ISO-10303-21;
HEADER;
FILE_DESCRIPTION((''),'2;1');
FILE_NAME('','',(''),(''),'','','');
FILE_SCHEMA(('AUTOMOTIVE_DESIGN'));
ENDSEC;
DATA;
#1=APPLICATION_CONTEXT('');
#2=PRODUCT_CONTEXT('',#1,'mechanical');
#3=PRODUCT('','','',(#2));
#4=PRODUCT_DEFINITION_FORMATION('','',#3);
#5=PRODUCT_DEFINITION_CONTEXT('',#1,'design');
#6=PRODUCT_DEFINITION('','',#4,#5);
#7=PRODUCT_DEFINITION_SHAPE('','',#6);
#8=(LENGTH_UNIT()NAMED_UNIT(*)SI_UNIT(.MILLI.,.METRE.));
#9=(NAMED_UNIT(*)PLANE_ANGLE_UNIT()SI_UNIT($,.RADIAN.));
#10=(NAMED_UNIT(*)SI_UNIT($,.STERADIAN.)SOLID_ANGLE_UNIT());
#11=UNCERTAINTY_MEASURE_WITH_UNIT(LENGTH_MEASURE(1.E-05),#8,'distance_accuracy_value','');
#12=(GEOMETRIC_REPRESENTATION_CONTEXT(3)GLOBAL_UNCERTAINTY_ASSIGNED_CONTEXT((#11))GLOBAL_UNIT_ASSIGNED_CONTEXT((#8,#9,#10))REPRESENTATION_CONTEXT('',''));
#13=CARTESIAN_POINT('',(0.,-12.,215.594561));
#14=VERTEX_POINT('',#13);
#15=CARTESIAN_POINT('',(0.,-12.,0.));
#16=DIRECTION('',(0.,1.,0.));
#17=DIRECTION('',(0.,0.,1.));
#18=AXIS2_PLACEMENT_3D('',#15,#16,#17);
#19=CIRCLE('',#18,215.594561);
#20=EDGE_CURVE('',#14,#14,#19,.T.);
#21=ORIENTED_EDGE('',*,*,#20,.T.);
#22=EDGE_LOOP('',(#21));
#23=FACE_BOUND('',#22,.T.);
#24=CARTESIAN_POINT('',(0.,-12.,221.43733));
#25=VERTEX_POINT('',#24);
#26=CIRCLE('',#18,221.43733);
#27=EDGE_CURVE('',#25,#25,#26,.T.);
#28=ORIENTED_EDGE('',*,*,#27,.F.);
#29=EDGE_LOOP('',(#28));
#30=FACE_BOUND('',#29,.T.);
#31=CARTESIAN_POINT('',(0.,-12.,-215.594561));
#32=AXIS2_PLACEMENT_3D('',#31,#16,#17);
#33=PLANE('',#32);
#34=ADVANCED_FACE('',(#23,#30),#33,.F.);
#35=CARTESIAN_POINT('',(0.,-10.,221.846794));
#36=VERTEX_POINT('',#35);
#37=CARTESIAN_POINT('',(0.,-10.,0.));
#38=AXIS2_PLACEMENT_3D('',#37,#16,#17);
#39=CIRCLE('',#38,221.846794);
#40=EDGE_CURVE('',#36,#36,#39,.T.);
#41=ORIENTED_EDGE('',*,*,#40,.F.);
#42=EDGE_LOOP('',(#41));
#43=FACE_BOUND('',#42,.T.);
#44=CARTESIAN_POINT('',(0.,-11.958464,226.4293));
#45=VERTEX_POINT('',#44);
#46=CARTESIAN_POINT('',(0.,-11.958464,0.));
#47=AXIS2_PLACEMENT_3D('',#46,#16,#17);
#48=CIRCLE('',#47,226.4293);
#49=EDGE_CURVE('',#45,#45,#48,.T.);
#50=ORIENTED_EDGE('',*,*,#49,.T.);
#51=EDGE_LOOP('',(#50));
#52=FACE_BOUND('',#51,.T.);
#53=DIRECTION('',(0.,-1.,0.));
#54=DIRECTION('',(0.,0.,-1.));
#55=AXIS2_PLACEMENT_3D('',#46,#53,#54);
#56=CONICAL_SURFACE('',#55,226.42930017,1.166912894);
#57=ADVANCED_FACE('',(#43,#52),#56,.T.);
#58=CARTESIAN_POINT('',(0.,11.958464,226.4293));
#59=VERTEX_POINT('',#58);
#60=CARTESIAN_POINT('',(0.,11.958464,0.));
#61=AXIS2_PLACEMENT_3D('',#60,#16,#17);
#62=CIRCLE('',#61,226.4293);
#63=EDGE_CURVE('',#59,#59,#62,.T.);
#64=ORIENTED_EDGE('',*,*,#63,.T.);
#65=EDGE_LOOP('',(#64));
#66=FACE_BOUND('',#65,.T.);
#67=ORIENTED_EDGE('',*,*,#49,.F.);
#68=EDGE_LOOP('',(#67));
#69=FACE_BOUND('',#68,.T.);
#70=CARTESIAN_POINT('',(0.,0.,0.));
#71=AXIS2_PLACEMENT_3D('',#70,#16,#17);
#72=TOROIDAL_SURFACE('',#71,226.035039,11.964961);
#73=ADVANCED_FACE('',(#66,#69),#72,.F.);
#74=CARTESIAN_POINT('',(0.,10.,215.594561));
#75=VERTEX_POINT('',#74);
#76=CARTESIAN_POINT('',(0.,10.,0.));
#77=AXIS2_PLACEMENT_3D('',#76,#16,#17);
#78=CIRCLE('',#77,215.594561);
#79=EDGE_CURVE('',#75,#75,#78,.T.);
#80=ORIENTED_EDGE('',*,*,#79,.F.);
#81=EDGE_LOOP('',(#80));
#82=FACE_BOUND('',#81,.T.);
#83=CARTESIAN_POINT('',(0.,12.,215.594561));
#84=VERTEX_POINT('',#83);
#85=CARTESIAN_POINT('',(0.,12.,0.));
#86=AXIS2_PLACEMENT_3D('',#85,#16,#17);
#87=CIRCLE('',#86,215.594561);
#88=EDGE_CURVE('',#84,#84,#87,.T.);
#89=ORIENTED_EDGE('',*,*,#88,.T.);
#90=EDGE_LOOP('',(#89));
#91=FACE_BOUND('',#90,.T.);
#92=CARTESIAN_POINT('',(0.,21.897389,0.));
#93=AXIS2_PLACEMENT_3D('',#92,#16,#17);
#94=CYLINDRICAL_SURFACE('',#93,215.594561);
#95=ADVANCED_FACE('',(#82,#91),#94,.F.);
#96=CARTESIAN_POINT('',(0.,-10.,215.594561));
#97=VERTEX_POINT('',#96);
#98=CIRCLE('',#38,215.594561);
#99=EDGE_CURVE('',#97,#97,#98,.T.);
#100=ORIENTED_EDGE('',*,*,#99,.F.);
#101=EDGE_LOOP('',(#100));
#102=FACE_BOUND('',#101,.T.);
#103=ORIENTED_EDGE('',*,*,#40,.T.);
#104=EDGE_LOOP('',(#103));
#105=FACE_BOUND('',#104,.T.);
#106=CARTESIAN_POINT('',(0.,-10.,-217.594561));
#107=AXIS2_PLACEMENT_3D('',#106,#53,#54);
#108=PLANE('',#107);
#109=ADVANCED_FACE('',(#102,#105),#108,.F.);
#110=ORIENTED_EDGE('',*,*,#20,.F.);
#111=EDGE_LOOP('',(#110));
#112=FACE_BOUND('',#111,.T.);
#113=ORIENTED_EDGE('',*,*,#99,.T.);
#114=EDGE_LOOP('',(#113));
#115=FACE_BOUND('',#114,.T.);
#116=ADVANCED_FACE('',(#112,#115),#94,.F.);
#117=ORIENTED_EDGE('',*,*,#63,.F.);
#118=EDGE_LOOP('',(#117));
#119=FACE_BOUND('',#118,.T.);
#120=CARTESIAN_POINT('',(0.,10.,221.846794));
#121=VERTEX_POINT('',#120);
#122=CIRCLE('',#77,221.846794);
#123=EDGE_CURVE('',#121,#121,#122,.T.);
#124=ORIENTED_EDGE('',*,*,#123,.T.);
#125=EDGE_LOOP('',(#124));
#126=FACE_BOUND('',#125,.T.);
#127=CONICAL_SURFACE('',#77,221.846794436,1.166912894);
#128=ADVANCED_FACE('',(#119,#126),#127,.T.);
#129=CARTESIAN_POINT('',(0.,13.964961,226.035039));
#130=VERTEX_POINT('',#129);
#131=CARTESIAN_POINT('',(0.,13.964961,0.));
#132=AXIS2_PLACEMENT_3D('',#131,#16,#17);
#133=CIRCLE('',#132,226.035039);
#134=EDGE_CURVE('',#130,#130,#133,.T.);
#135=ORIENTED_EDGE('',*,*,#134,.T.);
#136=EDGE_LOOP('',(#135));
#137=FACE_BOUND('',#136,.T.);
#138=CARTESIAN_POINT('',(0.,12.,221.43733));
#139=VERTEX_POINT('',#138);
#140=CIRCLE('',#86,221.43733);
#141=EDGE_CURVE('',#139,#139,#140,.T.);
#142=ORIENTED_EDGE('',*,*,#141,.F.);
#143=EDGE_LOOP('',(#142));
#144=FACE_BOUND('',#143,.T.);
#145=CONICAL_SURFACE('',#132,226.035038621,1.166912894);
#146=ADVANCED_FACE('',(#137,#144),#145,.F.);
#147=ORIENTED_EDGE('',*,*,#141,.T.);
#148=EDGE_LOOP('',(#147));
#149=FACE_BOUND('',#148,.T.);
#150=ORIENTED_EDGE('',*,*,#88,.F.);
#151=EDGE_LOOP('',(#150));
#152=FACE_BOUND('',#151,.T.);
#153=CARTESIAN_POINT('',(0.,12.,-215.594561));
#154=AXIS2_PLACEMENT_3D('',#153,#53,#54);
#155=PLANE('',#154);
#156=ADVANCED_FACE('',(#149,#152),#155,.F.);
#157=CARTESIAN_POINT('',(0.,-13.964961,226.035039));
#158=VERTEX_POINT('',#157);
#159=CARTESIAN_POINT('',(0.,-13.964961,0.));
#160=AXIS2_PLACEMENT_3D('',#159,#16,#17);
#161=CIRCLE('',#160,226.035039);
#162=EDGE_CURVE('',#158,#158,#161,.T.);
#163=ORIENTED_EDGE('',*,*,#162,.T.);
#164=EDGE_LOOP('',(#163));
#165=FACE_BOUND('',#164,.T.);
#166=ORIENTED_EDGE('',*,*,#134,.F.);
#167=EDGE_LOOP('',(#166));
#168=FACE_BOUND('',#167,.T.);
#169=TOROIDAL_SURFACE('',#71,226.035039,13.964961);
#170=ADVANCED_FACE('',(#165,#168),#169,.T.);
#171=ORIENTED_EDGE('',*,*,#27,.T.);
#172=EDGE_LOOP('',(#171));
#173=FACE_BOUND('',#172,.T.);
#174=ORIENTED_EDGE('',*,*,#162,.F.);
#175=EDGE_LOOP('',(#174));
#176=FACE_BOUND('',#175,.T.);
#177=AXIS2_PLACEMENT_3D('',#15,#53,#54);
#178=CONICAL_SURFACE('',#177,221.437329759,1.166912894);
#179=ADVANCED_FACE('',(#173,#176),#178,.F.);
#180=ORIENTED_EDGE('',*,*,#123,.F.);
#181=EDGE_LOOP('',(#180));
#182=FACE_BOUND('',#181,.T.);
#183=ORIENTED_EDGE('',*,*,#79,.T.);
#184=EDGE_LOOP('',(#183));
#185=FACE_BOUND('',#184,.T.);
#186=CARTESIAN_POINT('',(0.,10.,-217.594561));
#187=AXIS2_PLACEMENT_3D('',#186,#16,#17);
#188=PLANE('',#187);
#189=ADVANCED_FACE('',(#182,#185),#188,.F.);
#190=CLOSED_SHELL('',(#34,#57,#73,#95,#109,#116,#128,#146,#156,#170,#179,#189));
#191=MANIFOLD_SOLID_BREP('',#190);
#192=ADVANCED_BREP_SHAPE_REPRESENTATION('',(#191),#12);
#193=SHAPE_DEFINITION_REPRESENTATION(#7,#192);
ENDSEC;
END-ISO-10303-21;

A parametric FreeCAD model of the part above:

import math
import FreeCAD as App
import Part
import Sketcher
Q = App.Units.Quantity

doc = App.newDocument("Part")
body = doc.addObject("PartDesign::Body", "Body")

sketch1 = body.newObject("Sketcher::SketchObject", "Sketch")
sketch1.AttachmentSupport = (doc.getObject("YZ_Plane"), [""])
sketch1.MapMode = "FlatFace"
sketch1.addGeometry([
    Part.LineSegment(App.Vector(-10, -215.6, 0), App.Vector(-12, -215.6, 0)),
    Part.LineSegment(App.Vector(-12, -215.6, 0), App.Vector(-12, -221.4, 0)),
    Part.LineSegment(App.Vector(-12, -221.4, 0), App.Vector(-14, -226, 0)),
    Part.ArcOfCircle(Part.Circle(App.Vector(0, -226, 0), App.Vector(0, 0, 1), 14), math.radians(180), math.radians(360)),
    Part.LineSegment(App.Vector(14, -226, 0), App.Vector(12, -221.4, 0)),
    Part.LineSegment(App.Vector(12, -221.4, 0), App.Vector(12, -215.6, 0)),
    Part.LineSegment(App.Vector(12, -215.6, 0), App.Vector(10, -215.6, 0)),
    Part.LineSegment(App.Vector(10, -215.6, 0), App.Vector(10, -221.8, 0)),
    Part.LineSegment(App.Vector(10, -221.8, 0), App.Vector(12, -226.4, 0)),
    Part.ArcOfCircle(Part.Circle(App.Vector(0, -226, 0), App.Vector(0, 0, 1), 12), math.radians(-178), math.radians(-2)),
    Part.LineSegment(App.Vector(-12, -226.4, 0), App.Vector(-10, -221.8, 0)),
    Part.LineSegment(App.Vector(-10, -221.8, 0), App.Vector(-10, -215.6, 0)),
], False)
sketch1.addConstraint([
    Sketcher.Constraint("Coincident", 0, 2, 1, 1),
    Sketcher.Constraint("Coincident", 1, 2, 2, 1),
    Sketcher.Constraint("Coincident", 2, 2, 3, 1),
    Sketcher.Constraint("Coincident", 3, 2, 4, 1),
    Sketcher.Constraint("Coincident", 4, 2, 5, 1),
    Sketcher.Constraint("Coincident", 5, 2, 6, 1),
    Sketcher.Constraint("Coincident", 6, 2, 7, 1),
    Sketcher.Constraint("Coincident", 7, 2, 8, 1),
    Sketcher.Constraint("Coincident", 8, 2, 9, 2),
    Sketcher.Constraint("Coincident", 9, 1, 10, 1),
    Sketcher.Constraint("Coincident", 10, 2, 11, 1),
    Sketcher.Constraint("Coincident", 11, 2, 0, 1),
    Sketcher.Constraint("Horizontal", 0),
    Sketcher.Constraint("Vertical", 1),
    Sketcher.Constraint("Vertical", 5),
    Sketcher.Constraint("Horizontal", 6),
    Sketcher.Constraint("Vertical", 7),
    Sketcher.Constraint("Vertical", 11),
    Sketcher.Constraint("Coincident", 9, 3, 3, 3),
    Sketcher.Constraint("Symmetric", 2, 2, 3, 2, -2),
    Sketcher.Constraint("Symmetric", 1, 2, 4, 2, -2),
    Sketcher.Constraint("Symmetric", 7, 2, 10, 2, -2),
    Sketcher.Constraint("Parallel", 4, 8),
    Sketcher.Constraint("Parallel", 2, 10),
    Sketcher.Constraint("Horizontal", 9, 3, 2, 2),
    Sketcher.Constraint("Horizontal", 0, 2, 5, 2),
    Sketcher.Constraint("DistanceX", 0, 2, 0, 1, Q("2 mm")),
    Sketcher.Constraint("Distance", 2, Q("5 mm")),
    Sketcher.Constraint("DistanceX", 0, 2, -1, 1, Q("12 mm")),
    Sketcher.Constraint("Radius", 3, Q("13.964961 mm")),
    Sketcher.Constraint("Radius", 9, Q("11.964961 mm")),
    Sketcher.Constraint("DistanceY", 1, 2, 1, 1, Q("5.842769 mm")),
    Sketcher.Constraint("DistanceY", 8, 2, -1, 1, Q("226.4293 mm")),
    Sketcher.Constraint("DistanceY", 7, 2, 7, 1, Q("6.252234 mm")),
])
revolution = body.newObject("PartDesign::Revolution", "Revolution")
revolution.Profile = sketch1
revolution.ReferenceAxis = (sketch1, ["H_Axis"])
revolution.Angle = 360

doc.recompute()
